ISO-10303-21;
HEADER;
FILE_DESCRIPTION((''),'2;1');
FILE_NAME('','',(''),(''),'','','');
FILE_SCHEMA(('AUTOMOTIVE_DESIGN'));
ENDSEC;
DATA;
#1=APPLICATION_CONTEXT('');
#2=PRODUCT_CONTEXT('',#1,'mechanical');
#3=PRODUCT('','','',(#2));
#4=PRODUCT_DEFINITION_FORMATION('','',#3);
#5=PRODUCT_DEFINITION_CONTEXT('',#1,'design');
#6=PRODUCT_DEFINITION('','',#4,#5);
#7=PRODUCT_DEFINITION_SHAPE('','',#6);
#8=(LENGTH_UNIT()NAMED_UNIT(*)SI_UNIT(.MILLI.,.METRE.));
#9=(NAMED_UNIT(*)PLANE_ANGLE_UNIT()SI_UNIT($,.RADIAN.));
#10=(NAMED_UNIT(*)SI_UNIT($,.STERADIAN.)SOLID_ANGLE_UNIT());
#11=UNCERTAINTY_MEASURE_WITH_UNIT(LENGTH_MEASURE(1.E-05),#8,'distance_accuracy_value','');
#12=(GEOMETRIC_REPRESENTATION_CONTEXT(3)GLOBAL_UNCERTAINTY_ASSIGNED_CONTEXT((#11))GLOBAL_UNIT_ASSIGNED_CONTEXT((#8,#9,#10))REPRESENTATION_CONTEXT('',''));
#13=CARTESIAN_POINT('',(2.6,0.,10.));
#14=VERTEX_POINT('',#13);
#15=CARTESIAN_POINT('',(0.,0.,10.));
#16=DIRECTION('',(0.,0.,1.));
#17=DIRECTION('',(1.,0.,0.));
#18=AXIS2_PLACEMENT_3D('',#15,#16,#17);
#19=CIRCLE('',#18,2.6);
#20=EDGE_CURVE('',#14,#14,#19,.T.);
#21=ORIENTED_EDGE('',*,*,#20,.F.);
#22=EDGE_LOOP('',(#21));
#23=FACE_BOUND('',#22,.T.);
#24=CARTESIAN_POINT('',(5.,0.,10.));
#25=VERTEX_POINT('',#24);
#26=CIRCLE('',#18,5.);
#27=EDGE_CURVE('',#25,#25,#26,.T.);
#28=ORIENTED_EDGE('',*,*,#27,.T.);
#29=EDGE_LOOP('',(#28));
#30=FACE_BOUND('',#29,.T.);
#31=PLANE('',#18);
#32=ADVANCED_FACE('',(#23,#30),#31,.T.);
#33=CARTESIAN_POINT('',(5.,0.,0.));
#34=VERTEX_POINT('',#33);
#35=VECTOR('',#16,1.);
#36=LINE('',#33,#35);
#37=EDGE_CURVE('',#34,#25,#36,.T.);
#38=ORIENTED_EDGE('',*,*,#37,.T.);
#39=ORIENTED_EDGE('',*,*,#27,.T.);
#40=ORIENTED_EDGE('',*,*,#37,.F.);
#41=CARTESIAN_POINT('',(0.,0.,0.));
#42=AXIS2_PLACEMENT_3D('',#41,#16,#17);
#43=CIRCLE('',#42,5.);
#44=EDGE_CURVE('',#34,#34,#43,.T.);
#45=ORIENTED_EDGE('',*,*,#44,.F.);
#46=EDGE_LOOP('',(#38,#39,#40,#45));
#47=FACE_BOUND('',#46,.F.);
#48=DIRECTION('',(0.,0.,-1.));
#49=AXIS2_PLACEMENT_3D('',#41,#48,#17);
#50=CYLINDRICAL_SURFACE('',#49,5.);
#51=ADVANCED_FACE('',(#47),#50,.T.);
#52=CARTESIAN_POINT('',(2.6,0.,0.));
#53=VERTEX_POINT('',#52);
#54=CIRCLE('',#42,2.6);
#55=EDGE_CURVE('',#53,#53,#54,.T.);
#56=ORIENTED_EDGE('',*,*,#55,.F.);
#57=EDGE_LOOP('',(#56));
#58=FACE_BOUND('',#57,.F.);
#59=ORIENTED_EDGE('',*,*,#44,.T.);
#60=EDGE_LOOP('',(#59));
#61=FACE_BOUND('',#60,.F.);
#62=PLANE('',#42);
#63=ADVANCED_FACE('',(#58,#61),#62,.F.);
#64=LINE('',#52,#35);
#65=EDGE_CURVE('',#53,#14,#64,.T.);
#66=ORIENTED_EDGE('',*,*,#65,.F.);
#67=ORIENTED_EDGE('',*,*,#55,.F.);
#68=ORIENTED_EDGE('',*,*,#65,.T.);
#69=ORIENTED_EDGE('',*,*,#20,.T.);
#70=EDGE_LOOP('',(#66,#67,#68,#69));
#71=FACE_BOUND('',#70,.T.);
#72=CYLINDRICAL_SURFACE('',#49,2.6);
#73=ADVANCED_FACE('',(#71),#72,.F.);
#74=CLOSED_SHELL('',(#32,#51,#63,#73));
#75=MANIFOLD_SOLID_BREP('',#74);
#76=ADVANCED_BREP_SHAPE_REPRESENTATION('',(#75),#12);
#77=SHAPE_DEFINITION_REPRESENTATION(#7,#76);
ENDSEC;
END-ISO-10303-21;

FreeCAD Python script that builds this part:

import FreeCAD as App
import Part
import Sketcher
Q = App.Units.Quantity

doc = App.newDocument("Part")
params = doc.addObject("Spreadsheet::Sheet", "Params")
for row, (alias, value) in enumerate([
    ("sketch1_diameter", "10 mm"),
    ("sketch1_diameter2", "5.2 mm"),
    ("pad1_length", "10 mm"),
], start=1):
    params.set(f"A{row}", alias)
    params.set(f"B{row}", "=" + value)
    params.setAlias(f"B{row}", alias)

body = doc.addObject("PartDesign::Body", "Body")

# Sketch on XY plane
sketch1 = body.newObject("Sketcher::SketchObject", "Sketch")
sketch1.AttachmentSupport = (doc.getObject("XY_Plane"), [""])
sketch1.MapMode = "FlatFace"
sketch1.addGeometry([
    Part.Circle(App.Vector(0, 0, 0), App.Vector(0, 0, 1), 5),
    Part.Circle(App.Vector(0, 0, 0), App.Vector(0, 0, 1), 2.6),
], False)
sketch1.addConstraint([
    Sketcher.Constraint("Coincident", 0, 3, -1, 1),
    Sketcher.Constraint("Coincident", 1, 3, -1, 1),
    Sketcher.Constraint("Diameter", 0, Q("10 mm")),
    Sketcher.Constraint("Diameter", 1, Q("5.2 mm")),
])
sketch1.setExpression("Constraints[2]", "Params.sketch1_diameter")
sketch1.setExpression("Constraints[3]", "Params.sketch1_diameter2")
pad1 = body.newObject("PartDesign::Pad", "Pad")
pad1.Profile = sketch1
pad1.setExpression("Length", "Params.pad1_length")

doc.recompute()
